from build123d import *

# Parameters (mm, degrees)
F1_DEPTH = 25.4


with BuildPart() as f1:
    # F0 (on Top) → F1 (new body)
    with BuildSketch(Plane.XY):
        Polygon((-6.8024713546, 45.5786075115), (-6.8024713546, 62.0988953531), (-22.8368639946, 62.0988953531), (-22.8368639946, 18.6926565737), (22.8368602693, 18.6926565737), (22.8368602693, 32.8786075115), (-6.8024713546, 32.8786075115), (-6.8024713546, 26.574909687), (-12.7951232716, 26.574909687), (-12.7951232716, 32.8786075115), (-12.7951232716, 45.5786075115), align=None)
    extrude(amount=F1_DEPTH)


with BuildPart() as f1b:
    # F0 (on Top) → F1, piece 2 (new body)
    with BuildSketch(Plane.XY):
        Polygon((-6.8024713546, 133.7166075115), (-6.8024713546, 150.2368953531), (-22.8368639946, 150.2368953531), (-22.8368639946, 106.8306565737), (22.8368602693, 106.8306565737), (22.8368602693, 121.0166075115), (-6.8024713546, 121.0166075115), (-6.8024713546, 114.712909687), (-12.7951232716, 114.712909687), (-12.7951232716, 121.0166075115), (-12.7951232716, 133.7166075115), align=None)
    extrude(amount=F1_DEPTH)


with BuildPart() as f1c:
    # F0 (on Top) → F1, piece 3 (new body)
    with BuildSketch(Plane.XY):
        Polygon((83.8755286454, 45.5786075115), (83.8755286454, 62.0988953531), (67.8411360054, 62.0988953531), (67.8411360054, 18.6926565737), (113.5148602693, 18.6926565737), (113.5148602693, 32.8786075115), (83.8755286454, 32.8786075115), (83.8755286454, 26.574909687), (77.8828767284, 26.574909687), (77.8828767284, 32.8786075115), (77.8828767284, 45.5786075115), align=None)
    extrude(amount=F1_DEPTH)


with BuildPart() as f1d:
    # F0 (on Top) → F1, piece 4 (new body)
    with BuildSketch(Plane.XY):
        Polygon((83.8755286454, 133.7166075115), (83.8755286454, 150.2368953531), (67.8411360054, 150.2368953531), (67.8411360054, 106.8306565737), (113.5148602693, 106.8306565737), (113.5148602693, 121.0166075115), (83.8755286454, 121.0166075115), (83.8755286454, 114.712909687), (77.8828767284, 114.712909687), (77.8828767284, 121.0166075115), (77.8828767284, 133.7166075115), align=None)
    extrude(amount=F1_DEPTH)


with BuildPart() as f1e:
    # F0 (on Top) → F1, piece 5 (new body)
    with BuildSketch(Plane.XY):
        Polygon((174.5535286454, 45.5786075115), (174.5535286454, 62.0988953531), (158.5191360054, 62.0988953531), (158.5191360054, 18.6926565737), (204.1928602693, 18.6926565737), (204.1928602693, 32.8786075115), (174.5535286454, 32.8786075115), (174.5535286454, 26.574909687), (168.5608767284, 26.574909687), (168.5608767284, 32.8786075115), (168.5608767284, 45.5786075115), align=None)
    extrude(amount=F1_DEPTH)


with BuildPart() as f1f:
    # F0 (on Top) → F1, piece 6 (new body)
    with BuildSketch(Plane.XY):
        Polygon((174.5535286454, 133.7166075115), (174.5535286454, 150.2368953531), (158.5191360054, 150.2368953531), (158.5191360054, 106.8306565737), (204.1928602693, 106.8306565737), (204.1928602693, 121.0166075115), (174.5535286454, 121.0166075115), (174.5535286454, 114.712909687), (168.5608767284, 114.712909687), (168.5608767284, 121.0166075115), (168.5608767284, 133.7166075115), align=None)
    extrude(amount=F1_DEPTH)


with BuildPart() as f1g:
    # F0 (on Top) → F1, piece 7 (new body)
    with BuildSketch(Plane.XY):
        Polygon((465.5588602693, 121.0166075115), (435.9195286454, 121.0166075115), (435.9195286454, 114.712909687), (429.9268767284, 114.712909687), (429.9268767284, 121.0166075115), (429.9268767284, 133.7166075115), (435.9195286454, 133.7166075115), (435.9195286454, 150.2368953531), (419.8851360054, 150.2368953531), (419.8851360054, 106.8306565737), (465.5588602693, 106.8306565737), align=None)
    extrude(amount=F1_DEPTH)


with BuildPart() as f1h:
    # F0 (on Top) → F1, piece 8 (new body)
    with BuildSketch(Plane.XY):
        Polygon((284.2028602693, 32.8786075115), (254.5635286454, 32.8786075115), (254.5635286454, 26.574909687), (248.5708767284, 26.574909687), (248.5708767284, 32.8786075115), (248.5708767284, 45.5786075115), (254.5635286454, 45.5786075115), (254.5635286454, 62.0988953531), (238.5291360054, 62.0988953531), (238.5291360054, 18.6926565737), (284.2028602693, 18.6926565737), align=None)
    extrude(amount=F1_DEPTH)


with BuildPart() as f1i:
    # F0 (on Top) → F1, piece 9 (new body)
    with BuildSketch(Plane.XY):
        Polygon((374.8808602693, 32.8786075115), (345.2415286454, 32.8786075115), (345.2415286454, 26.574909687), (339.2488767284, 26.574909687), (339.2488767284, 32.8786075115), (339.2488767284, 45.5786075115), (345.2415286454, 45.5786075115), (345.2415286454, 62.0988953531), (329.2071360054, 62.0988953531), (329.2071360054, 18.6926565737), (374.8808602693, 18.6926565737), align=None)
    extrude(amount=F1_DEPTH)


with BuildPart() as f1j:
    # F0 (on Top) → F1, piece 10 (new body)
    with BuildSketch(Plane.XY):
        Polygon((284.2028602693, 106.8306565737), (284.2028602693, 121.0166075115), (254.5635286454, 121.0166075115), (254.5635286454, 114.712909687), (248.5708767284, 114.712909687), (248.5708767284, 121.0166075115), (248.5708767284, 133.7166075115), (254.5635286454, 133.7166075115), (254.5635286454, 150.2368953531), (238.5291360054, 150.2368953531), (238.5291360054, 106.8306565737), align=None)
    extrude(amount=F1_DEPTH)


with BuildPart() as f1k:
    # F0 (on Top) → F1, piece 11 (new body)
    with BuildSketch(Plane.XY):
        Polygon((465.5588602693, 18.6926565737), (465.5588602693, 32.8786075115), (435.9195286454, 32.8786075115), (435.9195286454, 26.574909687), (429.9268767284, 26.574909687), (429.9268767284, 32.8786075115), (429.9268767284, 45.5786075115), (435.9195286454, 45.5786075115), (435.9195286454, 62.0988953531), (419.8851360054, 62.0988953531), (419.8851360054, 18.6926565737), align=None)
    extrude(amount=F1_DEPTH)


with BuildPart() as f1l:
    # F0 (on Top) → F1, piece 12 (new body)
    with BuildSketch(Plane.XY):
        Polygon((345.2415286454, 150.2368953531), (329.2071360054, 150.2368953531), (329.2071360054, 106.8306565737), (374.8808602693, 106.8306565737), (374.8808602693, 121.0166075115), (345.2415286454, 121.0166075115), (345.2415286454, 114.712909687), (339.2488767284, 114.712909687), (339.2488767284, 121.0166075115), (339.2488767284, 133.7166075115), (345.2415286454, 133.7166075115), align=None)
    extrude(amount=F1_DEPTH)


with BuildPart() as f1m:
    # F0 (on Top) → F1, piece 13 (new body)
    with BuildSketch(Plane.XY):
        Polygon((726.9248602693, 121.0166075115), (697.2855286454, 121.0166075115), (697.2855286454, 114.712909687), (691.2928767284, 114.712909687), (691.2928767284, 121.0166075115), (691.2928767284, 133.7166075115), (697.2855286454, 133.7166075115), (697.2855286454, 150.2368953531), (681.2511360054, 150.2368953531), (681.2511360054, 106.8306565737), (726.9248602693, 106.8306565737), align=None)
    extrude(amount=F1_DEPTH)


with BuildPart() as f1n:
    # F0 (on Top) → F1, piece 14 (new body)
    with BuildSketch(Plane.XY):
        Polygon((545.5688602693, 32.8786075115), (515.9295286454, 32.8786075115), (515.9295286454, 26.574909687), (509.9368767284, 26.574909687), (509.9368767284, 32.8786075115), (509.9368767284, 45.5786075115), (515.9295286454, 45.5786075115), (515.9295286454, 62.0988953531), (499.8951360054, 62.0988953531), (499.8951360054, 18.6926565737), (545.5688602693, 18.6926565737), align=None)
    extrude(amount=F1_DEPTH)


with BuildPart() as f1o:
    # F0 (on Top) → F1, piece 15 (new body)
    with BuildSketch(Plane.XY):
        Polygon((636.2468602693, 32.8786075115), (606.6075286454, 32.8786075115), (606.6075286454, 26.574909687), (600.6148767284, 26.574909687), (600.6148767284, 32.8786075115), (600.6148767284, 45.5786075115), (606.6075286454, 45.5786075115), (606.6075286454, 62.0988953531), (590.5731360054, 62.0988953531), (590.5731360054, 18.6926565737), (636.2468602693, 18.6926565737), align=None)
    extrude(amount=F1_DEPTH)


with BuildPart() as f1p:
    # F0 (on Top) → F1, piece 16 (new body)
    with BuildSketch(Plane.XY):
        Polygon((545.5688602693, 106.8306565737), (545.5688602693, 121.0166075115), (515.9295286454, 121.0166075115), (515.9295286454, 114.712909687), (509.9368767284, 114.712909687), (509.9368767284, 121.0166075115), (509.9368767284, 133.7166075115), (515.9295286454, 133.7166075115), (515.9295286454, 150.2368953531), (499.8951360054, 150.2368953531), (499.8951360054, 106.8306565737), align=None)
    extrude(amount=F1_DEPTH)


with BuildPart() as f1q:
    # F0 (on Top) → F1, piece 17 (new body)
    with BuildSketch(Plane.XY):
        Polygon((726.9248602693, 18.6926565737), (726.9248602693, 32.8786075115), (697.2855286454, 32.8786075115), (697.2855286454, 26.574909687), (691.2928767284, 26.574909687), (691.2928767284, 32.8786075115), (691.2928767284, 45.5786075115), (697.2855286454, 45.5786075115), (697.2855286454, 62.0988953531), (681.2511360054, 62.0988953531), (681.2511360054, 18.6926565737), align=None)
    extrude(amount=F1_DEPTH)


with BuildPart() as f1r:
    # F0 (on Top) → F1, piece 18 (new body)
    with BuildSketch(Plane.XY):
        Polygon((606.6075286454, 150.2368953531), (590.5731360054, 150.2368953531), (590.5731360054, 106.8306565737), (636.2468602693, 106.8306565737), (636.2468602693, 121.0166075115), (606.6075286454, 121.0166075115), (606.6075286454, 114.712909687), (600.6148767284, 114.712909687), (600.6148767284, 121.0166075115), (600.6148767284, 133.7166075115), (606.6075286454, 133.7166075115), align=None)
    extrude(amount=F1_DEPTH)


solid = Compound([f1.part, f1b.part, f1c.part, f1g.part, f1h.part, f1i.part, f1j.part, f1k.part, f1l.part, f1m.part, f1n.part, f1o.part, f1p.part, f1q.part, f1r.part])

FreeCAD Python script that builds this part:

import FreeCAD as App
import Part
import Sketcher
from FreeCAD import Vector
Q = App.Units.Quantity


def add_polygon(sketch, points):
    """Adds a closed chain of lines whose ends are joined by coincident constraints."""
    first, n = sketch.GeometryCount, len(points)
    for a, b in zip(points, points[1:] + points[:1]):
        sketch.addGeometry(Part.LineSegment(App.Vector(*a, 0), App.Vector(*b, 0)), False)
    for i in range(n):
        sketch.addConstraint(Sketcher.Constraint("Coincident", first + i, 2, first + (i + 1) % n, 1))

doc = App.newDocument("Part")
body = doc.addObject("PartDesign::Body", "Body")

sketch1 = doc.addObject("Sketcher::SketchObject", "Sketch")
body.addObject(sketch1)
sketch1.AttachmentSupport = (doc.XY_Plane, [""])
sketch1.MapMode = "FlatFace"
add_polygon(sketch1, [(-6.802471, 45.578608), (-6.802471, 62.098895), (-22.836864, 62.098895), (-22.836864, 18.692657), (22.83686, 18.692657), (22.83686, 32.878608), (-6.802471, 32.878608), (-6.802471, 26.57491), (-12.795123, 26.57491), (-12.795123, 45.578608)])
sketch1.addConstraint([
    Sketcher.Constraint("Vertical", 0),
    Sketcher.Constraint("Horizontal", 1),
    Sketcher.Constraint("Vertical", 2),
    Sketcher.Constraint("Horizontal", 3),
    Sketcher.Constraint("Vertical", 4),
    Sketcher.Constraint("Horizontal", 5),
    Sketcher.Constraint("Vertical", 6),
    Sketcher.Constraint("Horizontal", 7),
    Sketcher.Constraint("Vertical", 8),
    Sketcher.Constraint("Horizontal", 9),
    Sketcher.Constraint("Vertical", 0, 2, 5, 2),
    Sketcher.Constraint("DistanceY", 5, 2, 8, 2, Q("0.5 in")),
    Sketcher.Constraint("DistanceX", 5, 2, 5, 1, Q("29.639332 mm")),
    Sketcher.Constraint("DistanceX", 7, 2, 7, 1, Q("5.992652 mm")),
    Sketcher.Constraint("DistanceY", 2, 2, 2, 1, Q("43.406239 mm")),
    Sketcher.Constraint("DistanceY", 4, 1, 4, 2, Q("14.185951 mm")),
    Sketcher.Constraint("DistanceX", 1, 2, 1, 1, Q("16.034393 mm")),
    Sketcher.Constraint("DistanceY", 6, 2, 6, 1, Q("6.303698 mm")),
    Sketcher.Constraint("DistanceX", 0, 2, -1, 1, Q("6.802471 mm")),
    Sketcher.Constraint("DistanceY", -1, 1, 6, 2, Q("26.57491 mm")),
])
pad1 = doc.addObject("PartDesign::Pad", "Pad")
body.addObject(pad1)
pad1.Profile = sketch1
pad1.Length = Q("1 in")
body2 = doc.addObject("PartDesign::Body", "Body001")

sketch2 = doc.addObject("Sketcher::SketchObject", "Sketch001")
body2.addObject(sketch2)
sketch2.AttachmentSupport = (doc.getObject("XY_Plane001"), [""])
sketch2.MapMode = "FlatFace"
add_polygon(sketch2, [(-6.802471, 133.716608), (-6.802471, 150.236895), (-22.836864, 150.236895), (-22.836864, 106.830657), (22.83686, 106.830657), (22.83686, 121.016608), (-6.802471, 121.016608), (-6.802471, 114.71291), (-12.795123, 114.71291), (-12.795123, 133.716608)])
sketch2.addConstraint([
    Sketcher.Constraint("Vertical", 0),
    Sketcher.Constraint("Horizontal", 1),
    Sketcher.Constraint("Vertical", 2),
    Sketcher.Constraint("Horizontal", 3),
    Sketcher.Constraint("Vertical", 4),
    Sketcher.Constraint("Horizontal", 5),
    Sketcher.Constraint("Vertical", 6),
    Sketcher.Constraint("Horizontal", 7),
    Sketcher.Constraint("Vertical", 8),
    Sketcher.Constraint("Horizontal", 9),
    Sketcher.Constraint("Vertical", 0, 2, 5, 2),
    Sketcher.Constraint("DistanceY", 5, 2, 8, 2, Q("0.5 in")),
    Sketcher.Constraint("DistanceX", 5, 2, 5, 1, Q("29.639332 mm")),
    Sketcher.Constraint("DistanceX", 7, 2, 7, 1, Q("5.992652 mm")),
    Sketcher.Constraint("DistanceY", 2, 2, 2, 1, Q("43.406239 mm")),
    Sketcher.Constraint("DistanceY", 4, 1, 4, 2, Q("14.185951 mm")),
    Sketcher.Constraint("DistanceX", 1, 2, 1, 1, Q("16.034393 mm")),
    Sketcher.Constraint("DistanceY", 6, 2, 6, 1, Q("6.303698 mm")),
    Sketcher.Constraint("DistanceX", 0, 2, -1, 1, Q("6.802471 mm")),
    Sketcher.Constraint("DistanceY", -1, 1, 6, 2, Q("114.71291 mm")),
])
pad2 = doc.addObject("PartDesign::Pad", "Pad001")
body2.addObject(pad2)
pad2.Profile = sketch2
pad2.Length = Q("1 in")
body3 = doc.addObject("PartDesign::Body", "Body002")

sketch3 = doc.addObject("Sketcher::SketchObject", "Sketch002")
body3.addObject(sketch3)
sketch3.AttachmentSupport = (doc.getObject("XY_Plane002"), [""])
sketch3.MapMode = "FlatFace"
add_polygon(sketch3, [(83.875529, 45.578608), (83.875529, 62.098895), (67.841136, 62.098895), (67.841136, 18.692657), (113.51486, 18.692657), (113.51486, 32.878608), (83.875529, 32.878608), (83.875529, 26.57491), (77.882877, 26.57491), (77.882877, 45.578608)])
sketch3.addConstraint([
    Sketcher.Constraint("Vertical", 0),
    Sketcher.Constraint("Horizontal", 1),
    Sketcher.Constraint("Vertical", 2),
    Sketcher.Constraint("Horizontal", 3),
    Sketcher.Constraint("Vertical", 4),
    Sketcher.Constraint("Horizontal", 5),
    Sketcher.Constraint("Vertical", 6),
    Sketcher.Constraint("Horizontal", 7),
    Sketcher.Constraint("Vertical", 8),
    Sketcher.Constraint("Horizontal", 9),
    Sketcher.Constraint("Vertical", 0, 2, 5, 2),
    Sketcher.Constraint("DistanceY", 5, 2, 8, 2, Q("0.5 in")),
    Sketcher.Constraint("DistanceX", 5, 2, 5, 1, Q("29.639332 mm")),
    Sketcher.Constraint("DistanceX", 7, 2, 7, 1, Q("5.992652 mm")),
    Sketcher.Constraint("DistanceY", 2, 2, 2, 1, Q("43.406239 mm")),
    Sketcher.Constraint("DistanceY", 4, 1, 4, 2, Q("14.185951 mm")),
    Sketcher.Constraint("DistanceX", 1, 2, 1, 1, Q("16.034393 mm")),
    Sketcher.Constraint("DistanceY", 6, 2, 6, 1, Q("6.303698 mm")),
    Sketcher.Constraint("DistanceX", -1, 1, 0, 2, Q("83.875529 mm")),
    Sketcher.Constraint("DistanceY", -1, 1, 6, 2, Q("26.57491 mm")),
])
pad3 = doc.addObject("PartDesign::Pad", "Pad002")
body3.addObject(pad3)
pad3.Profile = sketch3
pad3.Length = Q("1 in")
body4 = doc.addObject("PartDesign::Body", "Body003")

sketch4 = doc.addObject("Sketcher::SketchObject", "Sketch003")
body4.addObject(sketch4)
sketch4.AttachmentSupport = (doc.getObject("XY_Plane003"), [""])
sketch4.MapMode = "FlatFace"
add_polygon(sketch4, [(83.875529, 133.716608), (83.875529, 150.236895), (67.841136, 150.236895), (67.841136, 106.830657), (113.51486, 106.830657), (113.51486, 121.016608), (83.875529, 121.016608), (83.875529, 114.71291), (77.882877, 114.71291), (77.882877, 133.716608)])
sketch4.addConstraint([
    Sketcher.Constraint("Vertical", 0),
    Sketcher.Constraint("Horizontal", 1),
    Sketcher.Constraint("Vertical", 2),
    Sketcher.Constraint("Horizontal", 3),
    Sketcher.Constraint("Vertical", 4),
    Sketcher.Constraint("Horizontal", 5),
    Sketcher.Constraint("Vertical", 6),
    Sketcher.Constraint("Horizontal", 7),
    Sketcher.Constraint("Vertical", 8),
    Sketcher.Constraint("Horizontal", 9),
    Sketcher.Constraint("Vertical", 0, 2, 5, 2),
    Sketcher.Constraint("DistanceY", 5, 2, 8, 2, Q("0.5 in")),
    Sketcher.Constraint("DistanceX", 5, 2, 5, 1, Q("29.639332 mm")),
    Sketcher.Constraint("DistanceX", 7, 2, 7, 1, Q("5.992652 mm")),
    Sketcher.Constraint("DistanceY", 2, 2, 2, 1, Q("43.406239 mm")),
    Sketcher.Constraint("DistanceY", 4, 1, 4, 2, Q("14.185951 mm")),
    Sketcher.Constraint("DistanceX", 1, 2, 1, 1, Q("16.034393 mm")),
    Sketcher.Constraint("DistanceY", 6, 2, 6, 1, Q("6.303698 mm")),
    Sketcher.Constraint("DistanceX", -1, 1, 0, 2, Q("83.875529 mm")),
    Sketcher.Constraint("DistanceY", -1, 1, 6, 2, Q("114.71291 mm")),
])
pad4 = doc.addObject("PartDesign::Pad", "Pad003")
body4.addObject(pad4)
pad4.Profile = sketch4
pad4.Length = Q("1 in")
body5 = doc.addObject("PartDesign::Body", "Body004")

sketch5 = doc.addObject("Sketcher::SketchObject", "Sketch004")
body5.addObject(sketch5)
sketch5.AttachmentSupport = (doc.getObject("XY_Plane004"), [""])
sketch5.MapMode = "FlatFace"
add_polygon(sketch5, [(174.553529, 45.578608), (174.553529, 62.098895), (158.519136, 62.098895), (158.519136, 18.692657), (204.19286, 18.692657), (204.19286, 32.878608), (174.553529, 32.878608), (174.553529, 26.57491), (168.560877, 26.57491), (168.560877, 45.578608)])
sketch5.addConstraint([
    Sketcher.Constraint("Vertical", 0),
    Sketcher.Constraint("Horizontal", 1),
    Sketcher.Constraint("Vertical", 2),
    Sketcher.Constraint("Horizontal", 3),
    Sketcher.Constraint("Vertical", 4),
    Sketcher.Constraint("Horizontal", 5),
    Sketcher.Constraint("Vertical", 6),
    Sketcher.Constraint("Horizontal", 7),
    Sketcher.Constraint("Vertical", 8),
    Sketcher.Constraint("Horizontal", 9),
    Sketcher.Constraint("Vertical", 0, 2, 5, 2),
    Sketcher.Constraint("DistanceY", 5, 2, 8, 2, Q("0.5 in")),
    Sketcher.Constraint("DistanceX", 5, 2, 5, 1, Q("29.639332 mm")),
    Sketcher.Constraint("DistanceX", 7, 2, 7, 1, Q("5.992652 mm")),
    Sketcher.Constraint("DistanceY", 2, 2, 2, 1, Q("43.406239 mm")),
    Sketcher.Constraint("DistanceY", 4, 1, 4, 2, Q("14.185951 mm")),
    Sketcher.Constraint("DistanceX", 1, 2, 1, 1, Q("16.034393 mm")),
    Sketcher.Constraint("DistanceY", 6, 2, 6, 1, Q("6.303698 mm")),
    Sketcher.Constraint("DistanceX", -1, 1, 0, 2, Q("174.553529 mm")),
    Sketcher.Constraint("DistanceY", -1, 1, 6, 2, Q("26.57491 mm")),
])
pad5 = doc.addObject("PartDesign::Pad", "Pad004")
body5.addObject(pad5)
pad5.Profile = sketch5
pad5.Length = Q("1 in")
body6 = doc.addObject("PartDesign::Body", "Body005")

sketch6 = doc.addObject("Sketcher::SketchObject", "Sketch005")
body6.addObject(sketch6)
sketch6.AttachmentSupport = (doc.getObject("XY_Plane005"), [""])
sketch6.MapMode = "FlatFace"
add_polygon(sketch6, [(174.553529, 133.716608), (174.553529, 150.236895), (158.519136, 150.236895), (158.519136, 106.830657), (204.19286, 106.830657), (204.19286, 121.016608), (174.553529, 121.016608), (174.553529, 114.71291), (168.560877, 114.71291), (168.560877, 133.716608)])
sketch6.addConstraint([
    Sketcher.Constraint("Vertical", 0),
    Sketcher.Constraint("Horizontal", 1),
    Sketcher.Constraint("Vertical", 2),
    Sketcher.Constraint("Horizontal", 3),
    Sketcher.Constraint("Vertical", 4),
    Sketcher.Constraint("Horizontal", 5),
    Sketcher.Constraint("Vertical", 6),
    Sketcher.Constraint("Horizontal", 7),
    Sketcher.Constraint("Vertical", 8),
    Sketcher.Constraint("Horizontal", 9),
    Sketcher.Constraint("Vertical", 0, 2, 5, 2),
    Sketcher.Constraint("DistanceY", 5, 2, 8, 2, Q("0.5 in")),
    Sketcher.Constraint("DistanceX", 5, 2, 5, 1, Q("29.639332 mm")),
    Sketcher.Constraint("DistanceX", 7, 2, 7, 1, Q("5.992652 mm")),
    Sketcher.Constraint("DistanceY", 2, 2, 2, 1, Q("43.406239 mm")),
    Sketcher.Constraint("DistanceY", 4, 1, 4, 2, Q("14.185951 mm")),
    Sketcher.Constraint("DistanceX", 1, 2, 1, 1, Q("16.034393 mm")),
    Sketcher.Constraint("DistanceY", 6, 2, 6, 1, Q("6.303698 mm")),
    Sketcher.Constraint("DistanceX", -1, 1, 0, 2, Q("174.553529 mm")),
    Sketcher.Constraint("DistanceY", -1, 1, 6, 2, Q("114.71291 mm")),
])
pad6 = doc.addObject("PartDesign::Pad", "Pad005")
body6.addObject(pad6)
pad6.Profile = sketch6
pad6.Length = Q("1 in")
body7 = doc.addObject("PartDesign::Body", "Body006")

sketch7 = doc.addObject("Sketcher::SketchObject", "Sketch006")
body7.addObject(sketch7)
sketch7.AttachmentSupport = (doc.getObject("XY_Plane006"), [""])
sketch7.MapMode = "FlatFace"
add_polygon(sketch7, [(465.55886, 121.016608), (435.919529, 121.016608), (435.919529, 114.71291), (429.926877, 114.71291), (429.926877, 133.716608), (435.919529, 133.716608), (435.919529, 150.236895), (419.885136, 150.236895), (419.885136, 106.830657), (465.55886, 106.830657)])
sketch7.addConstraint([
    Sketcher.Constraint("Horizontal", 0),
    Sketcher.Constraint("Vertical", 1),
    Sketcher.Constraint("Horizontal", 2),
    Sketcher.Constraint("Vertical", 3),
    Sketcher.Constraint("Horizontal", 4),
    Sketcher.Constraint("Vertical", 5),
    Sketcher.Constraint("Horizontal", 6),
    Sketcher.Constraint("Vertical", 7),
    Sketcher.Constraint("Horizontal", 8),
    Sketcher.Constraint("Vertical", 9),
    Sketcher.Constraint("Vertical", 1, 2, 4, 2),
    Sketcher.Constraint("DistanceY", 0, 2, 3, 2, Q("0.5 in")),
    Sketcher.Constraint("DistanceX", 0, 2, 0, 1, Q("29.639332 mm")),
    Sketcher.Constraint("DistanceX", 2, 2, 2, 1, Q("5.992652 mm")),
    Sketcher.Constraint("DistanceY", 7, 2, 7, 1, Q("43.406239 mm")),
    Sketcher.Constraint("DistanceY", 9, 1, 9, 2, Q("14.185951 mm")),
    Sketcher.Constraint("DistanceX", 6, 2, 6, 1, Q("16.034393 mm")),
    Sketcher.Constraint("DistanceY", 1, 2, 1, 1, Q("6.303698 mm")),
    Sketcher.Constraint("DistanceX", -1, 1, 0, 2, Q("435.919529 mm")),
    Sketcher.Constraint("DistanceY", -1, 1, 1, 2, Q("114.71291 mm")),
])
pad7 = doc.addObject("PartDesign::Pad", "Pad006")
body7.addObject(pad7)
pad7.Profile = sketch7
pad7.Length = Q("1 in")
body8 = doc.addObject("PartDesign::Body", "Body007")

sketch8 = doc.addObject("Sketcher::SketchObject", "Sketch007")
body8.addObject(sketch8)
sketch8.AttachmentSupport = (doc.getObject("XY_Plane007"), [""])
sketch8.MapMode = "FlatFace"
add_polygon(sketch8, [(284.20286, 32.878608), (254.563529, 32.878608), (254.563529, 26.57491), (248.570877, 26.57491), (248.570877, 45.578608), (254.563529, 45.578608), (254.563529, 62.098895), (238.529136, 62.098895), (238.529136, 18.692657), (284.20286, 18.692657)])
sketch8.addConstraint([
    Sketcher.Constraint("Horizontal", 0),
    Sketcher.Constraint("Vertical", 1),
    Sketcher.Constraint("Horizontal", 2),
    Sketcher.Constraint("Vertical", 3),
    Sketcher.Constraint("Horizontal", 4),
    Sketcher.Constraint("Vertical", 5),
    Sketcher.Constraint("Horizontal", 6),
    Sketcher.Constraint("Vertical", 7),
    Sketcher.Constraint("Horizontal", 8),
    Sketcher.Constraint("Vertical", 9),
    Sketcher.Constraint("Vertical", 1, 2, 4, 2),
    Sketcher.Constraint("DistanceY", 0, 2, 3, 2, Q("0.5 in")),
    Sketcher.Constraint("DistanceX", 0, 2, 0, 1, Q("29.639332 mm")),
    Sketcher.Constraint("DistanceX", 2, 2, 2, 1, Q("5.992652 mm")),
    Sketcher.Constraint("DistanceY", 7, 2, 7, 1, Q("43.406239 mm")),
    Sketcher.Constraint("DistanceY", 9, 1, 9, 2, Q("14.185951 mm")),
    Sketcher.Constraint("DistanceX", 6, 2, 6, 1, Q("16.034393 mm")),
    Sketcher.Constraint("DistanceY", 1, 2, 1, 1, Q("6.303698 mm")),
    Sketcher.Constraint("DistanceX", -1, 1, 0, 2, Q("254.563529 mm")),
    Sketcher.Constraint("DistanceY", -1, 1, 1, 2, Q("26.57491 mm")),
])
pad8 = doc.addObject("PartDesign::Pad", "Pad007")
body8.addObject(pad8)
pad8.Profile = sketch8
pad8.Length = Q("1 in")
body9 = doc.addObject("PartDesign::Body", "Body008")

sketch9 = doc.addObject("Sketcher::SketchObject", "Sketch008")
body9.addObject(sketch9)
sketch9.AttachmentSupport = (doc.getObject("XY_Plane008"), [""])
sketch9.MapMode = "FlatFace"
add_polygon(sketch9, [(374.88086, 32.878608), (345.241529, 32.878608), (345.241529, 26.57491), (339.248877, 26.57491), (339.248877, 45.578608), (345.241529, 45.578608), (345.241529, 62.098895), (329.207136, 62.098895), (329.207136, 18.692657), (374.88086, 18.692657)])
sketch9.addConstraint([
    Sketcher.Constraint("Horizontal", 0),
    Sketcher.Constraint("Vertical", 1),
    Sketcher.Constraint("Horizontal", 2),
    Sketcher.Constraint("Vertical", 3),
    Sketcher.Constraint("Horizontal", 4),
    Sketcher.Constraint("Vertical", 5),
    Sketcher.Constraint("Horizontal", 6),
    Sketcher.Constraint("Vertical", 7),
    Sketcher.Constraint("Horizontal", 8),
    Sketcher.Constraint("Vertical", 9),
    Sketcher.Constraint("Vertical", 1, 2, 4, 2),
    Sketcher.Constraint("DistanceY", 0, 2, 3, 2, Q("0.5 in")),
    Sketcher.Constraint("DistanceX", 0, 2, 0, 1, Q("29.639332 mm")),
    Sketcher.Constraint("DistanceX", 2, 2, 2, 1, Q("5.992652 mm")),
    Sketcher.Constraint("DistanceY", 7, 2, 7, 1, Q("43.406239 mm")),
    Sketcher.Constraint("DistanceY", 9, 1, 9, 2, Q("14.185951 mm")),
    Sketcher.Constraint("DistanceX", 6, 2, 6, 1, Q("16.034393 mm")),
    Sketcher.Constraint("DistanceY", 1, 2, 1, 1, Q("6.303698 mm")),
    Sketcher.Constraint("DistanceX", -1, 1, 0, 2, Q("345.241529 mm")),
    Sketcher.Constraint("DistanceY", -1, 1, 1, 2, Q("26.57491 mm")),
])
pad9 = doc.addObject("PartDesign::Pad", "Pad008")
body9.addObject(pad9)
pad9.Profile = sketch9
pad9.Length = Q("1 in")
body10 = doc.addObject("PartDesign::Body", "Body009")

sketch10 = doc.addObject("Sketcher::SketchObject", "Sketch009")
body10.addObject(sketch10)
sketch10.AttachmentSupport = (doc.getObject("XY_Plane009"), [""])
sketch10.MapMode = "FlatFace"
add_polygon(sketch10, [(284.20286, 106.830657), (284.20286, 121.016608), (254.563529, 121.016608), (254.563529, 114.71291), (248.570877, 114.71291), (248.570877, 133.716608), (254.563529, 133.716608), (254.563529, 150.236895), (238.529136, 150.236895), (238.529136, 106.830657)])
sketch10.addConstraint([
    Sketcher.Constraint("Vertical", 0),
    Sketcher.Constraint("Horizontal", 1),
    Sketcher.Constraint("Vertical", 2),
    Sketcher.Constraint("Horizontal", 3),
    Sketcher.Constraint("Vertical", 4),
    Sketcher.Constraint("Horizontal", 5),
    Sketcher.Constraint("Vertical", 6),
    Sketcher.Constraint("Horizontal", 7),
    Sketcher.Constraint("Vertical", 8),
    Sketcher.Constraint("Horizontal", 9),
    Sketcher.Constraint("Vertical", 2, 2, 5, 2),
    Sketcher.Constraint("DistanceY", 1, 2, 4, 2, Q("0.5 in")),
    Sketcher.Constraint("DistanceX", 1, 2, 1, 1, Q("29.639332 mm")),
    Sketcher.Constraint("DistanceX", 3, 2, 3, 1, Q("5.992652 mm")),
    Sketcher.Constraint("DistanceY", 0, 1, 0, 2, Q("14.185951 mm")),
    Sketcher.Constraint("DistanceY", 8, 2, 8, 1, Q("43.406239 mm")),
    Sketcher.Constraint("DistanceX", 7, 2, 7, 1, Q("16.034393 mm")),
    Sketcher.Constraint("DistanceY", 2, 2, 2, 1, Q("6.303698 mm")),
    Sketcher.Constraint("DistanceX", -1, 1, 0, 2, Q("284.20286 mm")),
    Sketcher.Constraint("DistanceY", -1, 1, 2, 2, Q("114.71291 mm")),
])
pad10 = doc.addObject("PartDesign::Pad", "Pad009")
body10.addObject(pad10)
pad10.Profile = sketch10
pad10.Length = Q("1 in")
body11 = doc.addObject("PartDesign::Body", "Body010")

sketch11 = doc.addObject("Sketcher::SketchObject", "Sketch010")
body11.addObject(sketch11)
sketch11.AttachmentSupport = (doc.getObject("XY_Plane010"), [""])
sketch11.MapMode = "FlatFace"
add_polygon(sketch11, [(465.55886, 18.692657), (465.55886, 32.878608), (435.919529, 32.878608), (435.919529, 26.57491), (429.926877, 26.57491), (429.926877, 45.578608), (435.919529, 45.578608), (435.919529, 62.098895), (419.885136, 62.098895), (419.885136, 18.692657)])
sketch11.addConstraint([
    Sketcher.Constraint("Vertical", 0),
    Sketcher.Constraint("Horizontal", 1),
    Sketcher.Constraint("Vertical", 2),
    Sketcher.Constraint("Horizontal", 3),
    Sketcher.Constraint("Vertical", 4),
    Sketcher.Constraint("Horizontal", 5),
    Sketcher.Constraint("Vertical", 6),
    Sketcher.Constraint("Horizontal", 7),
    Sketcher.Constraint("Vertical", 8),
    Sketcher.Constraint("Horizontal", 9),
    Sketcher.Constraint("Vertical", 2, 2, 5, 2),
    Sketcher.Constraint("DistanceY", 1, 2, 4, 2, Q("0.5 in")),
    Sketcher.Constraint("DistanceX", 1, 2, 1, 1, Q("29.639332 mm")),
    Sketcher.Constraint("DistanceX", 3, 2, 3, 1, Q("5.992652 mm")),
    Sketcher.Constraint("DistanceY", 0, 1, 0, 2, Q("14.185951 mm")),
    Sketcher.Constraint("DistanceY", 8, 2, 8, 1, Q("43.406239 mm")),
    Sketcher.Constraint("DistanceX", 7, 2, 7, 1, Q("16.034393 mm")),
    Sketcher.Constraint("DistanceY", 2, 2, 2, 1, Q("6.303698 mm")),
    Sketcher.Constraint("DistanceX", -1, 1, 0, 2, Q("465.55886 mm")),
    Sketcher.Constraint("DistanceY", -1, 1, 2, 2, Q("26.57491 mm")),
])
pad11 = doc.addObject("PartDesign::Pad", "Pad010")
body11.addObject(pad11)
pad11.Profile = sketch11
pad11.Length = Q("1 in")
body12 = doc.addObject("PartDesign::Body", "Body011")

sketch12 = doc.addObject("Sketcher::SketchObject", "Sketch011")
body12.addObject(sketch12)
sketch12.AttachmentSupport = (doc.getObject("XY_Plane011"), [""])
sketch12.MapMode = "FlatFace"
add_polygon(sketch12, [(345.241529, 150.236895), (329.207136, 150.236895), (329.207136, 106.830657), (374.88086, 106.830657), (374.88086, 121.016608), (345.241529, 121.016608), (345.241529, 114.71291), (339.248877, 114.71291), (339.248877, 133.716608), (345.241529, 133.716608)])
sketch12.addConstraint([
    Sketcher.Constraint("Horizontal", 0),
    Sketcher.Constraint("Vertical", 1),
    Sketcher.Constraint("Horizontal", 2),
    Sketcher.Constraint("Vertical", 3),
    Sketcher.Constraint("Horizontal", 4),
    Sketcher.Constraint("Vertical", 5),
    Sketcher.Constraint("Horizontal", 6),
    Sketcher.Constraint("Vertical", 7),
    Sketcher.Constraint("Horizontal", 8),
    Sketcher.Constraint("Vertical", 9),
    Sketcher.Constraint("Vertical", 5, 2, 8, 2),
    Sketcher.Constraint("DistanceY", 4, 2, 7, 2, Q("0.5 in")),
    Sketcher.Constraint("DistanceX", 4, 2, 4, 1, Q("29.639332 mm")),
    Sketcher.Constraint("DistanceX", 6, 2, 6, 1, Q("5.992652 mm")),
    Sketcher.Constraint("DistanceY", 1, 2, 1, 1, Q("43.406239 mm")),
    Sketcher.Constraint("DistanceY", 3, 1, 3, 2, Q("14.185951 mm")),
    Sketcher.Constraint("DistanceX", 0, 2, 0, 1, Q("16.034393 mm")),
    Sketcher.Constraint("DistanceY", 5, 2, 5, 1, Q("6.303698 mm")),
    Sketcher.Constraint("DistanceX", -1, 1, 2, 2, Q("374.88086 mm")),
    Sketcher.Constraint("DistanceY", -1, 1, 5, 2, Q("114.71291 mm")),
])
pad12 = doc.addObject("PartDesign::Pad", "Pad011")
body12.addObject(pad12)
pad12.Profile = sketch12
pad12.Length = Q("1 in")
body13 = doc.addObject("PartDesign::Body", "Body012")

sketch13 = doc.addObject("Sketcher::SketchObject", "Sketch012")
body13.addObject(sketch13)
sketch13.AttachmentSupport = (doc.getObject("XY_Plane012"), [""])
sketch13.MapMode = "FlatFace"
add_polygon(sketch13, [(726.92486, 121.016608), (697.285529, 121.016608), (697.285529, 114.71291), (691.292877, 114.71291), (691.292877, 133.716608), (697.285529, 133.716608), (697.285529, 150.236895), (681.251136, 150.236895), (681.251136, 106.830657), (726.92486, 106.830657)])
sketch13.addConstraint([
    Sketcher.Constraint("Horizontal", 0),
    Sketcher.Constraint("Vertical", 1),
    Sketcher.Constraint("Horizontal", 2),
    Sketcher.Constraint("Vertical", 3),
    Sketcher.Constraint("Horizontal", 4),
    Sketcher.Constraint("Vertical", 5),
    Sketcher.Constraint("Horizontal", 6),
    Sketcher.Constraint("Vertical", 7),
    Sketcher.Constraint("Horizontal", 8),
    Sketcher.Constraint("Vertical", 9),
    Sketcher.Constraint("Vertical", 1, 2, 4, 2),
    Sketcher.Constraint("DistanceY", 0, 2, 3, 2, Q("0.5 in")),
    Sketcher.Constraint("DistanceX", 0, 2, 0, 1, Q("29.639332 mm")),
    Sketcher.Constraint("DistanceX", 2, 2, 2, 1, Q("5.992652 mm")),
    Sketcher.Constraint("DistanceY", 7, 2, 7, 1, Q("43.406239 mm")),
    Sketcher.Constraint("DistanceY", 9, 1, 9, 2, Q("14.185951 mm")),
    Sketcher.Constraint("DistanceX", 6, 2, 6, 1, Q("16.034393 mm")),
    Sketcher.Constraint("DistanceY", 1, 2, 1, 1, Q("6.303698 mm")),
    Sketcher.Constraint("DistanceX", -1, 1, 0, 2, Q("697.285529 mm")),
    Sketcher.Constraint("DistanceY", -1, 1, 1, 2, Q("114.71291 mm")),
])
pad13 = doc.addObject("PartDesign::Pad", "Pad012")
body13.addObject(pad13)
pad13.Profile = sketch13
pad13.Length = Q("1 in")
body14 = doc.addObject("PartDesign::Body", "Body013")

sketch14 = doc.addObject("Sketcher::SketchObject", "Sketch013")
body14.addObject(sketch14)
sketch14.AttachmentSupport = (doc.getObject("XY_Plane013"), [""])
sketch14.MapMode = "FlatFace"
add_polygon(sketch14, [(545.56886, 32.878608), (515.929529, 32.878608), (515.929529, 26.57491), (509.936877, 26.57491), (509.936877, 45.578608), (515.929529, 45.578608), (515.929529, 62.098895), (499.895136, 62.098895), (499.895136, 18.692657), (545.56886, 18.692657)])
sketch14.addConstraint([
    Sketcher.Constraint("Horizontal", 0),
    Sketcher.Constraint("Vertical", 1),
    Sketcher.Constraint("Horizontal", 2),
    Sketcher.Constraint("Vertical", 3),
    Sketcher.Constraint("Horizontal", 4),
    Sketcher.Constraint("Vertical", 5),
    Sketcher.Constraint("Horizontal", 6),
    Sketcher.Constraint("Vertical", 7),
    Sketcher.Constraint("Horizontal", 8),
    Sketcher.Constraint("Vertical", 9),
    Sketcher.Constraint("Vertical", 1, 2, 4, 2),
    Sketcher.Constraint("DistanceY", 0, 2, 3, 2, Q("0.5 in")),
    Sketcher.Constraint("DistanceX", 0, 2, 0, 1, Q("29.639332 mm")),
    Sketcher.Constraint("DistanceX", 2, 2, 2, 1, Q("5.992652 mm")),
    Sketcher.Constraint("DistanceY", 7, 2, 7, 1, Q("43.406239 mm")),
    Sketcher.Constraint("DistanceY", 9, 1, 9, 2, Q("14.185951 mm")),
    Sketcher.Constraint("DistanceX", 6, 2, 6, 1, Q("16.034393 mm")),
    Sketcher.Constraint("DistanceY", 1, 2, 1, 1, Q("6.303698 mm")),
    Sketcher.Constraint("DistanceX", -1, 1, 0, 2, Q("515.929529 mm")),
    Sketcher.Constraint("DistanceY", -1, 1, 1, 2, Q("26.57491 mm")),
])
pad14 = doc.addObject("PartDesign::Pad", "Pad013")
body14.addObject(pad14)
pad14.Profile = sketch14
pad14.Length = Q("1 in")
body15 = doc.addObject("PartDesign::Body", "Body014")

sketch15 = doc.addObject("Sketcher::SketchObject", "Sketch014")
body15.addObject(sketch15)
sketch15.AttachmentSupport = (doc.getObject("XY_Plane014"), [""])
sketch15.MapMode = "FlatFace"
add_polygon(sketch15, [(636.24686, 32.878608), (606.607529, 32.878608), (606.607529, 26.57491), (600.614877, 26.57491), (600.614877, 45.578608), (606.607529, 45.578608), (606.607529, 62.098895), (590.573136, 62.098895), (590.573136, 18.692657), (636.24686, 18.692657)])
sketch15.addConstraint([
    Sketcher.Constraint("Horizontal", 0),
    Sketcher.Constraint("Vertical", 1),
    Sketcher.Constraint("Horizontal", 2),
    Sketcher.Constraint("Vertical", 3),
    Sketcher.Constraint("Horizontal", 4),
    Sketcher.Constraint("Vertical", 5),
    Sketcher.Constraint("Horizontal", 6),
    Sketcher.Constraint("Vertical", 7),
    Sketcher.Constraint("Horizontal", 8),
    Sketcher.Constraint("Vertical", 9),
    Sketcher.Constraint("Vertical", 1, 2, 4, 2),
    Sketcher.Constraint("DistanceY", 0, 2, 3, 2, Q("0.5 in")),
    Sketcher.Constraint("DistanceX", 0, 2, 0, 1, Q("29.639332 mm")),
    Sketcher.Constraint("DistanceX", 2, 2, 2, 1, Q("5.992652 mm")),
    Sketcher.Constraint("DistanceY", 7, 2, 7, 1, Q("43.406239 mm")),
    Sketcher.Constraint("DistanceY", 9, 1, 9, 2, Q("14.185951 mm")),
    Sketcher.Constraint("DistanceX", 6, 2, 6, 1, Q("16.034393 mm")),
    Sketcher.Constraint("DistanceY", 1, 2, 1, 1, Q("6.303698 mm")),
    Sketcher.Constraint("DistanceX", -1, 1, 0, 2, Q("606.607529 mm")),
    Sketcher.Constraint("DistanceY", -1, 1, 1, 2, Q("26.57491 mm")),
])
pad15 = doc.addObject("PartDesign::Pad", "Pad014")
body15.addObject(pad15)
pad15.Profile = sketch15
pad15.Length = Q("1 in")
body16 = doc.addObject("PartDesign::Body", "Body015")

sketch16 = doc.addObject("Sketcher::SketchObject", "Sketch015")
body16.addObject(sketch16)
sketch16.AttachmentSupport = (doc.getObject("XY_Plane015"), [""])
sketch16.MapMode = "FlatFace"
add_polygon(sketch16, [(545.56886, 106.830657), (545.56886, 121.016608), (515.929529, 121.016608), (515.929529, 114.71291), (509.936877, 114.71291), (509.936877, 133.716608), (515.929529, 133.716608), (515.929529, 150.236895), (499.895136, 150.236895), (499.895136, 106.830657)])
sketch16.addConstraint([
    Sketcher.Constraint("Vertical", 0),
    Sketcher.Constraint("Horizontal", 1),
    Sketcher.Constraint("Vertical", 2),
    Sketcher.Constraint("Horizontal", 3),
    Sketcher.Constraint("Vertical", 4),
    Sketcher.Constraint("Horizontal", 5),
    Sketcher.Constraint("Vertical", 6),
    Sketcher.Constraint("Horizontal", 7),
    Sketcher.Constraint("Vertical", 8),
    Sketcher.Constraint("Horizontal", 9),
    Sketcher.Constraint("Vertical", 2, 2, 5, 2),
    Sketcher.Constraint("DistanceY", 1, 2, 4, 2, Q("0.5 in")),
    Sketcher.Constraint("DistanceX", 1, 2, 1, 1, Q("29.639332 mm")),
    Sketcher.Constraint("DistanceX", 3, 2, 3, 1, Q("5.992652 mm")),
    Sketcher.Constraint("DistanceY", 0, 1, 0, 2, Q("14.185951 mm")),
    Sketcher.Constraint("DistanceY", 8, 2, 8, 1, Q("43.406239 mm")),
    Sketcher.Constraint("DistanceX", 7, 2, 7, 1, Q("16.034393 mm")),
    Sketcher.Constraint("DistanceY", 2, 2, 2, 1, Q("6.303698 mm")),
    Sketcher.Constraint("DistanceX", -1, 1, 0, 2, Q("545.56886 mm")),
    Sketcher.Constraint("DistanceY", -1, 1, 2, 2, Q("114.71291 mm")),
])
pad16 = doc.addObject("PartDesign::Pad", "Pad015")
body16.addObject(pad16)
pad16.Profile = sketch16
pad16.Length = Q("1 in")
body17 = doc.addObject("PartDesign::Body", "Body016")

sketch17 = doc.addObject("Sketcher::SketchObject", "Sketch016")
body17.addObject(sketch17)
sketch17.AttachmentSupport = (doc.getObject("XY_Plane016"), [""])
sketch17.MapMode = "FlatFace"
add_polygon(sketch17, [(726.92486, 18.692657), (726.92486, 32.878608), (697.285529, 32.878608), (697.285529, 26.57491), (691.292877, 26.57491), (691.292877, 45.578608), (697.285529, 45.578608), (697.285529, 62.098895), (681.251136, 62.098895), (681.251136, 18.692657)])
sketch17.addConstraint([
    Sketcher.Constraint("Vertical", 0),
    Sketcher.Constraint("Horizontal", 1),
    Sketcher.Constraint("Vertical", 2),
    Sketcher.Constraint("Horizontal", 3),
    Sketcher.Constraint("Vertical", 4),
    Sketcher.Constraint("Horizontal", 5),
    Sketcher.Constraint("Vertical", 6),
    Sketcher.Constraint("Horizontal", 7),
    Sketcher.Constraint("Vertical", 8),
    Sketcher.Constraint("Horizontal", 9),
    Sketcher.Constraint("Vertical", 2, 2, 5, 2),
    Sketcher.Constraint("DistanceY", 1, 2, 4, 2, Q("0.5 in")),
    Sketcher.Constraint("DistanceX", 1, 2, 1, 1, Q("29.639332 mm")),
    Sketcher.Constraint("DistanceX", 3, 2, 3, 1, Q("5.992652 mm")),
    Sketcher.Constraint("DistanceY", 0, 1, 0, 2, Q("14.185951 mm")),
    Sketcher.Constraint("DistanceY", 8, 2, 8, 1, Q("43.406239 mm")),
    Sketcher.Constraint("DistanceX", 7, 2, 7, 1, Q("16.034393 mm")),
    Sketcher.Constraint("DistanceY", 2, 2, 2, 1, Q("6.303698 mm")),
    Sketcher.Constraint("DistanceX", -1, 1, 0, 2, Q("726.92486 mm")),
    Sketcher.Constraint("DistanceY", -1, 1, 2, 2, Q("26.57491 mm")),
])
pad17 = doc.addObject("PartDesign::Pad", "Pad016")
body17.addObject(pad17)
pad17.Profile = sketch17
pad17.Length = Q("1 in")
body18 = doc.addObject("PartDesign::Body", "Body017")

sketch18 = doc.addObject("Sketcher::SketchObject", "Sketch017")
body18.addObject(sketch18)
sketch18.AttachmentSupport = (doc.getObject("XY_Plane017"), [""])
sketch18.MapMode = "FlatFace"
add_polygon(sketch18, [(606.607529, 150.236895), (590.573136, 150.236895), (590.573136, 106.830657), (636.24686, 106.830657), (636.24686, 121.016608), (606.607529, 121.016608), (606.607529, 114.71291), (600.614877, 114.71291), (600.614877, 133.716608), (606.607529, 133.716608)])
sketch18.addConstraint([
    Sketcher.Constraint("Horizontal", 0),
    Sketcher.Constraint("Vertical", 1),
    Sketcher.Constraint("Horizontal", 2),
    Sketcher.Constraint("Vertical", 3),
    Sketcher.Constraint("Horizontal", 4),
    Sketcher.Constraint("Vertical", 5),
    Sketcher.Constraint("Horizontal", 6),
    Sketcher.Constraint("Vertical", 7),
    Sketcher.Constraint("Horizontal", 8),
    Sketcher.Constraint("Vertical", 9),
    Sketcher.Constraint("Vertical", 5, 2, 8, 2),
    Sketcher.Constraint("DistanceY", 4, 2, 7, 2, Q("0.5 in")),
    Sketcher.Constraint("DistanceX", 4, 2, 4, 1, Q("29.639332 mm")),
    Sketcher.Constraint("DistanceX", 6, 2, 6, 1, Q("5.992652 mm")),
    Sketcher.Constraint("DistanceY", 1, 2, 1, 1, Q("43.406239 mm")),
    Sketcher.Constraint("DistanceY", 3, 1, 3, 2, Q("14.185951 mm")),
    Sketcher.Constraint("DistanceX", 0, 2, 0, 1, Q("16.034393 mm")),
    Sketcher.Constraint("DistanceY", 5, 2, 5, 1, Q("6.303698 mm")),
    Sketcher.Constraint("DistanceX", -1, 1, 2, 2, Q("636.24686 mm")),
    Sketcher.Constraint("DistanceY", -1, 1, 5, 2, Q("114.71291 mm")),
])
pad18 = doc.addObject("PartDesign::Pad", "Pad017")
body18.addObject(pad18)
pad18.Profile = sketch18
pad18.Length = Q("1 in")

doc.recompute()
